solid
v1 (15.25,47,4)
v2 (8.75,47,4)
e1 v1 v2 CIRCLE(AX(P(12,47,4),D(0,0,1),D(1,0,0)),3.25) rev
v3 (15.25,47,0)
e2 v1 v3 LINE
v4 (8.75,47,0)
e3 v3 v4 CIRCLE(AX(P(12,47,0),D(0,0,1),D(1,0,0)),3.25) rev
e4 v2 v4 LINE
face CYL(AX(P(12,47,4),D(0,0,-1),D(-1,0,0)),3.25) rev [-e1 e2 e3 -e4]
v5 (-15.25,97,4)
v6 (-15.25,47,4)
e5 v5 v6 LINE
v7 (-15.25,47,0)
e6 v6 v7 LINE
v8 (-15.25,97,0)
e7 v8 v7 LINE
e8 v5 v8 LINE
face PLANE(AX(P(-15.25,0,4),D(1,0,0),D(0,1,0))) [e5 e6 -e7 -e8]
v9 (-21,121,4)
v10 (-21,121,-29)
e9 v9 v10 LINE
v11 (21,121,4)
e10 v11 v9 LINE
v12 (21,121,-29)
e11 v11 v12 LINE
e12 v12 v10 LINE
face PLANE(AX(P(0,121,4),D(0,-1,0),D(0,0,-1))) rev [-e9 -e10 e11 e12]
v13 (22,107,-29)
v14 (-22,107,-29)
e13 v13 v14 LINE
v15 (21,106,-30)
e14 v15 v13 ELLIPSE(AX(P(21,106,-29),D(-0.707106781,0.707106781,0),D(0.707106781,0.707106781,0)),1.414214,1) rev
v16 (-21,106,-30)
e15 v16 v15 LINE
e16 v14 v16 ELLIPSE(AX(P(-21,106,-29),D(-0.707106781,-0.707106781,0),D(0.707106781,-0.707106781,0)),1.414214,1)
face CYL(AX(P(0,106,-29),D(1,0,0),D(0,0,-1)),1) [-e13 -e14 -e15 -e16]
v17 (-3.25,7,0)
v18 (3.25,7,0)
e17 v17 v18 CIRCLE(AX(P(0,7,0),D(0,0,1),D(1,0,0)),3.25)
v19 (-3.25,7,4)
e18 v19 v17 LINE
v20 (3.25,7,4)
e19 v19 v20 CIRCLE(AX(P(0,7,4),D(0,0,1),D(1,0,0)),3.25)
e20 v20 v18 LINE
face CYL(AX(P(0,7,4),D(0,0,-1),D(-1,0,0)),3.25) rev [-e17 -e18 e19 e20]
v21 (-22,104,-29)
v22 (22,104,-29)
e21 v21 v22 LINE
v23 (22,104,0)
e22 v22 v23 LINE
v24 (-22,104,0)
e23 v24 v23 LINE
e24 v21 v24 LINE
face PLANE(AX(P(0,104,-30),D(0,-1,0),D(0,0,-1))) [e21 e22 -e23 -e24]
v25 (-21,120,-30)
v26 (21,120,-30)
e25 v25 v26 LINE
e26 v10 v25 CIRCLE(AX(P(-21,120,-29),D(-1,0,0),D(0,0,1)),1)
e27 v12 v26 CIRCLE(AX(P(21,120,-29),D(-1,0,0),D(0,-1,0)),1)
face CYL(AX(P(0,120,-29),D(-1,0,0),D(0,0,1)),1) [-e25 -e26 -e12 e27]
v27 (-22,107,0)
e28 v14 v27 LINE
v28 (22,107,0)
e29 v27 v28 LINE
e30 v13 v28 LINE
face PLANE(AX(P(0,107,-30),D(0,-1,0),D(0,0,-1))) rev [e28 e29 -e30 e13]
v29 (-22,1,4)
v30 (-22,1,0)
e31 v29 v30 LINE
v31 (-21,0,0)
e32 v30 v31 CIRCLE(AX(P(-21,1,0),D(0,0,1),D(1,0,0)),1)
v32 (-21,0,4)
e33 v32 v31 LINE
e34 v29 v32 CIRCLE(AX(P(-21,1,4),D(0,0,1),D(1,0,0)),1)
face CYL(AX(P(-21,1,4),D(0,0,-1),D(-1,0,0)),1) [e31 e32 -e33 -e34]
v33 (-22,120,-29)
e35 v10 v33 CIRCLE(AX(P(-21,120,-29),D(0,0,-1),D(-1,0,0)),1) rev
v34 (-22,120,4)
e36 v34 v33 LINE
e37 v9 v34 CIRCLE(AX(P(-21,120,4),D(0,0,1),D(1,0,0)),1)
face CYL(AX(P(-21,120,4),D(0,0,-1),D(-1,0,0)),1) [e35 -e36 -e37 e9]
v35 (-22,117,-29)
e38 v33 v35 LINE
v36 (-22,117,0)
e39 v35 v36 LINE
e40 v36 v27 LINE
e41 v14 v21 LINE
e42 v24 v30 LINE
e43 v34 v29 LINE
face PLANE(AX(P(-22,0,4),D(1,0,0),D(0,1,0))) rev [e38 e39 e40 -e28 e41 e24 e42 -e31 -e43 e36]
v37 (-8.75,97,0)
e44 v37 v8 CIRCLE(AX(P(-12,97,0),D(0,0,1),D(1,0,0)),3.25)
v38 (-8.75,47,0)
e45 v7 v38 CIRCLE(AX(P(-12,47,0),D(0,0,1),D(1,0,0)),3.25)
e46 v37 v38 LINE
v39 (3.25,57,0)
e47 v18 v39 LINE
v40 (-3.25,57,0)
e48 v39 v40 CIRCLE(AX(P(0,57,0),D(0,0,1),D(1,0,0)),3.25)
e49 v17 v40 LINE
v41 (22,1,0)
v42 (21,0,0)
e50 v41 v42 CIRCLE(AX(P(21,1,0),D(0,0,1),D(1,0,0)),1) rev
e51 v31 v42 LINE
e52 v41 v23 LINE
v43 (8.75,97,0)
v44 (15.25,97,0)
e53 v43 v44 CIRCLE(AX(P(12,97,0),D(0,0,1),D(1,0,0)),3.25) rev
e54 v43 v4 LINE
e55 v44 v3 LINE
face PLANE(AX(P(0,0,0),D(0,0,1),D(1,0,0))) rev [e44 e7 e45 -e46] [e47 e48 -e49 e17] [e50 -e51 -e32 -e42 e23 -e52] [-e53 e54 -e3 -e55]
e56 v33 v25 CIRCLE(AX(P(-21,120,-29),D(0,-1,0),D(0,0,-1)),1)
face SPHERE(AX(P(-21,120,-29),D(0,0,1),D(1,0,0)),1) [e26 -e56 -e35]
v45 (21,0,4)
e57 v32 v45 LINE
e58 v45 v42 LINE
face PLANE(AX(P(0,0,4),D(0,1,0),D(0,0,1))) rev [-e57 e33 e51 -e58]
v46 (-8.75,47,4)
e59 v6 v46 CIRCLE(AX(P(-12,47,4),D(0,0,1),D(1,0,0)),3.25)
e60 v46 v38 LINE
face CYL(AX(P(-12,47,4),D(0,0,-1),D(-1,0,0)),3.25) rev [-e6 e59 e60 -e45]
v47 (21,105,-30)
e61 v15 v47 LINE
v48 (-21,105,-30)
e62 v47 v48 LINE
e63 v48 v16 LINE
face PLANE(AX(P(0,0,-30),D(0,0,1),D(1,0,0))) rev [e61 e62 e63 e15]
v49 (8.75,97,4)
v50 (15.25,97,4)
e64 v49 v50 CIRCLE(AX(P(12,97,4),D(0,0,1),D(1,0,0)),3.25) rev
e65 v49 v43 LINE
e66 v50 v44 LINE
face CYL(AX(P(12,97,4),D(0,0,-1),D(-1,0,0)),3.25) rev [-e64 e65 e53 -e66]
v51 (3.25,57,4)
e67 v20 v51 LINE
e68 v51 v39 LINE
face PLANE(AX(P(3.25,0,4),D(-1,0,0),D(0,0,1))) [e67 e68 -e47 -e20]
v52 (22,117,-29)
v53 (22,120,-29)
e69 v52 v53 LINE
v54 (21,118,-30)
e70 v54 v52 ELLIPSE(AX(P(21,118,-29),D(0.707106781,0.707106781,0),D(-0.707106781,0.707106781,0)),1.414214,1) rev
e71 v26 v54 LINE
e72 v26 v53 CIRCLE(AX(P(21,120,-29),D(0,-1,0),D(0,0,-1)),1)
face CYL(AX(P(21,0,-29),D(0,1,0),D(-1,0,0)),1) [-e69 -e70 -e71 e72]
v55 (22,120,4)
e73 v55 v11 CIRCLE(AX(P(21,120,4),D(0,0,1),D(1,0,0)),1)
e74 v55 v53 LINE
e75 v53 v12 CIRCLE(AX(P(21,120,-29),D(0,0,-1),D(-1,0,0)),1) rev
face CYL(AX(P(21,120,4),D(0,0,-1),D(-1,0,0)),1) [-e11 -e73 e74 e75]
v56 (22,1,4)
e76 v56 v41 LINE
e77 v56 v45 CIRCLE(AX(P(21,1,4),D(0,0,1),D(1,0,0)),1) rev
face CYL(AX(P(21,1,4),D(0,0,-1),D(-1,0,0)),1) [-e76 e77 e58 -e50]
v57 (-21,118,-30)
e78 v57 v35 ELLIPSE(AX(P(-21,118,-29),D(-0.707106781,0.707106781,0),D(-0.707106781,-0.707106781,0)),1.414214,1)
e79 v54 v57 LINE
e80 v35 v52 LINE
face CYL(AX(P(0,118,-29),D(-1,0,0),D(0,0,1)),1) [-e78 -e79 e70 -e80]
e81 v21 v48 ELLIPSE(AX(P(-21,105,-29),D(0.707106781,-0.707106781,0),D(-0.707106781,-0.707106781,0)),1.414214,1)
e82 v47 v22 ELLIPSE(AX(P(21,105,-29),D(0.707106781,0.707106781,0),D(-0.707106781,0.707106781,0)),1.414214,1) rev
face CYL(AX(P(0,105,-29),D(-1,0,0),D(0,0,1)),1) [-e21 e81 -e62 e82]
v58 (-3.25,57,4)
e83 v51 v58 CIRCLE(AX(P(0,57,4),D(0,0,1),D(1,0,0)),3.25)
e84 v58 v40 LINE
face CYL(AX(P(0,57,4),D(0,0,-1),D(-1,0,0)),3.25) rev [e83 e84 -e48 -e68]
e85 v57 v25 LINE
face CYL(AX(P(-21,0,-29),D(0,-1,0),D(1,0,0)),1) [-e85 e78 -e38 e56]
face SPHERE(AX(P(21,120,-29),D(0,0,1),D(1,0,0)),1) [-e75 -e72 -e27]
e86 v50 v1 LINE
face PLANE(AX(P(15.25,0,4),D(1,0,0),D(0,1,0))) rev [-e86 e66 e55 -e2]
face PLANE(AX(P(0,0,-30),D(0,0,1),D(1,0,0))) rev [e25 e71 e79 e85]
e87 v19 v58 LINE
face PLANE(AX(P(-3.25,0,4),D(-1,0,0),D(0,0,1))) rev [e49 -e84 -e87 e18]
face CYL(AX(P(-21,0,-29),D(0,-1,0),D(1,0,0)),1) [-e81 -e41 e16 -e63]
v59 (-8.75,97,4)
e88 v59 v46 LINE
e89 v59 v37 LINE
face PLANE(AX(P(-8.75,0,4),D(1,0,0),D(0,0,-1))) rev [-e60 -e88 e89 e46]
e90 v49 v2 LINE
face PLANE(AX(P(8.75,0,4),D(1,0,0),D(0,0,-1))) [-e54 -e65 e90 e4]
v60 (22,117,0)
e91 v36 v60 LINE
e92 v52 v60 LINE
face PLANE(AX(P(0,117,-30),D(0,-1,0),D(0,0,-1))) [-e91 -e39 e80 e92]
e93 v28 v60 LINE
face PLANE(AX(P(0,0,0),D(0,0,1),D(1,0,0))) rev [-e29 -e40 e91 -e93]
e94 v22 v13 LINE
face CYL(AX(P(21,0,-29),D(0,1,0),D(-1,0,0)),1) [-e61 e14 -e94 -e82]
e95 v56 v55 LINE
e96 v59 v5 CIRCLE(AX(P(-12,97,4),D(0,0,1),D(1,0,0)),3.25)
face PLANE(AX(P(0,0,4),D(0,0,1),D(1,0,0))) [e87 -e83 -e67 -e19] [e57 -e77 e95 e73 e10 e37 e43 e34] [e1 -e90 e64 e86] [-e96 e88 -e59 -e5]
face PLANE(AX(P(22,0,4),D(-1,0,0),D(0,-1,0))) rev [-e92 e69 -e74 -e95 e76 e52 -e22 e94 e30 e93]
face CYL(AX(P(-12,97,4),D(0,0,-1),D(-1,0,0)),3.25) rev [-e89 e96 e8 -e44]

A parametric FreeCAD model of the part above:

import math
import FreeCAD as App
import Part
import Sketcher

V = App.Vector


def edges_at(feature, points):
    """Names of the edges that pass closest to the given points."""
    edges = feature.Shape.Edges
    near = lambda p: min(range(len(edges)), key=lambda i: edges[i].distToShape(Part.Vertex(*p))[0])
    return sorted({f"Edge{near(p) + 1}" for p in points})


def add_polygon(sketch, points):
    """Adds a closed chain of lines whose ends are joined by coincident constraints."""
    first, n = sketch.GeometryCount, len(points)
    for a, b in zip(points, points[1:] + points[:1]):
        sketch.addGeometry(Part.LineSegment(App.Vector(*a, 0), App.Vector(*b, 0)), False)
    for i in range(n):
        sketch.addConstraint(Sketcher.Constraint("Coincident", first + i, 2, first + (i + 1) % n, 1))

doc = App.newDocument("Part")
body = doc.addObject("PartDesign::Body", "Body")

# Sketch on XY plane
sketch1 = body.newObject("Sketcher::SketchObject", "Sketch")
sketch1.AttachmentSupport = (doc.getObject("XY_Plane"), [""])
sketch1.MapMode = "FlatFace"
sketch1.addGeometry([
    Part.ArcOfCircle(Part.Circle(V(-21, 1, 0), V(0, 0, 1), 1), math.radians(-180), math.radians(-90)),  # 0
    Part.LineSegment(V(-21, 0, 0), V(21, 0, 0)),  # 1
    Part.ArcOfCircle(Part.Circle(V(21, 1, 0), V(0, 0, 1), 1), math.radians(-90), math.radians(0)),  # 2
    Part.LineSegment(V(22, 1, 0), V(22, 120, 0)),  # 3
    Part.ArcOfCircle(Part.Circle(V(21, 120, 0), V(0, 0, 1), 1), math.radians(0), math.radians(90)),  # 4
    Part.LineSegment(V(21, 121, 0), V(-21, 121, 0)),  # 5
    Part.ArcOfCircle(Part.Circle(V(-21, 120, 0), V(0, 0, 1), 1), math.radians(90), math.radians(180)),  # 6
    Part.LineSegment(V(-22, 120, 0), V(-22, 1, 0)),  # 7
    Part.LineSegment(V(3.25, 57, 0), V(3.25, 7, 0)),  # 8
    Part.ArcOfCircle(Part.Circle(V(0, 7, 0), V(0, 0, 1), 3.25), math.radians(180), math.radians(360)),  # 9
    Part.LineSegment(V(-3.25, 7, 0), V(-3.25, 57, 0)),  # 10
    Part.ArcOfCircle(Part.Circle(V(0, 57, 0), V(0, 0, 1), 3.25), math.radians(0), math.radians(180)),  # 11
    Part.LineSegment(V(-15.25, 47, 0), V(-15.25, 97, 0)),  # 12
    Part.ArcOfCircle(Part.Circle(V(-12, 97, 0), V(0, 0, 1), 3.25), math.radians(0), math.radians(180)),  # 13
    Part.LineSegment(V(-8.75, 97, 0), V(-8.75, 47, 0)),  # 14
    Part.ArcOfCircle(Part.Circle(V(-12, 47, 0), V(0, 0, 1), 3.25), math.radians(180), math.radians(360)),  # 15
    Part.ArcOfCircle(Part.Circle(V(12, 47, 0), V(0, 0, 1), 3.25), math.radians(180), math.radians(360)),  # 16
    Part.LineSegment(V(8.75, 47, 0), V(8.75, 97, 0)),  # 17
    Part.ArcOfCircle(Part.Circle(V(12, 97, 0), V(0, 0, 1), 3.25), math.radians(0), math.radians(180)),  # 18
    Part.LineSegment(V(15.25, 97, 0), V(15.25, 47, 0)),  # 19
], False)
sketch1.addConstraint([
    Sketcher.Constraint("Tangent", 0, 2, 1, 1),
    Sketcher.Constraint("Tangent", 1, 2, 2, 1),
    Sketcher.Constraint("Tangent", 2, 2, 3, 1),
    Sketcher.Constraint("Tangent", 3, 2, 4, 1),
    Sketcher.Constraint("Tangent", 4, 2, 5, 1),
    Sketcher.Constraint("Tangent", 5, 2, 6, 1),
    Sketcher.Constraint("Tangent", 6, 2, 7, 1),
    Sketcher.Constraint("Tangent", 7, 2, 0, 1),
    Sketcher.Constraint("Tangent", 8, 2, 9, 2),
    Sketcher.Constraint("Tangent", 9, 1, 10, 1),
    Sketcher.Constraint("Tangent", 10, 2, 11, 2),
    Sketcher.Constraint("Tangent", 11, 1, 8, 1),
    Sketcher.Constraint("Tangent", 12, 2, 13, 2),
    Sketcher.Constraint("Tangent", 13, 1, 14, 1),
    Sketcher.Constraint("Tangent", 14, 2, 15, 2),
    Sketcher.Constraint("Tangent", 15, 1, 12, 1),
    Sketcher.Constraint("Tangent", 16, 1, 17, 1),
    Sketcher.Constraint("Tangent", 17, 2, 18, 2),
    Sketcher.Constraint("Tangent", 18, 1, 19, 1),
    Sketcher.Constraint("Tangent", 19, 2, 16, 2),
    Sketcher.Constraint("Horizontal", 1),
    Sketcher.Constraint("Vertical", 3),
    Sketcher.Constraint("Horizontal", 5),
    Sketcher.Constraint("Vertical", 7),
    Sketcher.Constraint("Vertical", 8),
    Sketcher.Constraint("Vertical", 10),
    Sketcher.Constraint("Vertical", 12),
    Sketcher.Constraint("Vertical", 14),
    Sketcher.Constraint("Vertical", 17),
    Sketcher.Constraint("Vertical", 19),
    Sketcher.Constraint("Equal", 0, 2),
    Sketcher.Constraint("Equal", 2, 4),
    Sketcher.Constraint("Equal", 4, 6),
    Sketcher.Constraint("Equal", 11, 13),
    Sketcher.Constraint("Equal", 15, 16),
    Sketcher.Constraint("Symmetric", 0, 2, 1, 2, -1, 1),
    Sketcher.Constraint("Symmetric", 15, 3, 16, 3, -2),
    Sketcher.Constraint("PointOnObject", 9, 3, -2),
    Sketcher.Constraint("Horizontal", 13, 3, 18, 3),
    Sketcher.Constraint("Equal", 10, 12),
    Sketcher.Constraint("Radius", 0, 1.0),
    Sketcher.Constraint("DistanceX", 1, 1, 1, 2, 42.0),
    Sketcher.Constraint("DistanceY", 3, 1, 3, 2, 119.0),
    Sketcher.Constraint("DistanceY", 8, 2, 8, 1, 50.0),
    Sketcher.Constraint("Radius", 9, 3.25),
    Sketcher.Constraint("DistanceY", -1, 1, 9, 3, 7.0),
    Sketcher.Constraint("DistanceX", 13, 3, -1, 1, 12.0),
    Sketcher.Constraint("DistanceY", -1, 1, 13, 3, 97.0),
])
pad1 = body.newObject("PartDesign::Pad", "Pad")
pad1.Profile = sketch1
pad1.Length = 4

# Sketch on XY plane
sketch2 = body.newObject("Sketcher::SketchObject", "Sketch001")
sketch2.AttachmentSupport = (doc.getObject("XY_Plane"), [""])
sketch2.MapMode = "FlatFace"
add_polygon(sketch2, [(-22, 107), (-22, 104), (22, 104), (22, 107)])  # lines 0-3
sketch2.addGeometry(Part.LineSegment(V(-22, 120, 0), V(-22, 117, 0)), False)  # 4
sketch2.addGeometry(Part.LineSegment(V(-22, 117, 0), V(22, 117, 0)), False)  # 5
sketch2.addGeometry(Part.LineSegment(V(22, 117, 0), V(22, 120, 0)), False)  # 6
sketch2.addGeometry(Part.ArcOfCircle(Part.Circle(V(21, 120, 0), V(0, 0, 1), 1), math.radians(0), math.radians(90)), False)  # 7
sketch2.addGeometry(Part.LineSegment(V(21, 121, 0), V(-21, 121, 0)), False)  # 8
sketch2.addGeometry(Part.ArcOfCircle(Part.Circle(V(-21, 120, 0), V(0, 0, 1), 1), math.radians(90), math.radians(180)), False)  # 9
sketch2.addConstraint([
    Sketcher.Constraint("Coincident", 4, 2, 5, 1),
    Sketcher.Constraint("Coincident", 5, 2, 6, 1),
    Sketcher.Constraint("Tangent", 6, 2, 7, 1),
    Sketcher.Constraint("Tangent", 7, 2, 8, 1),
    Sketcher.Constraint("Tangent", 8, 2, 9, 1),
    Sketcher.Constraint("Tangent", 9, 2, 4, 1),
    Sketcher.Constraint("Vertical", 0),
    Sketcher.Constraint("Horizontal", 1),
    Sketcher.Constraint("Vertical", 2),
    Sketcher.Constraint("Horizontal", 3),
    Sketcher.Constraint("Vertical", 4),
    Sketcher.Constraint("Horizontal", 5),
    Sketcher.Constraint("Vertical", 6),
    Sketcher.Constraint("Horizontal", 8),
    Sketcher.Constraint("Equal", 7, 9),
    Sketcher.Constraint("Vertical", 3, 2, 4, 2),
    Sketcher.Constraint("Vertical", 2, 2, 5, 2),
    Sketcher.Constraint("Equal", 2, 4),
    Sketcher.Constraint("Radius", 7, 1.0),
    Sketcher.Constraint("DistanceX", 1, 1, 1, 2, 44.0),
    Sketcher.Constraint("DistanceY", 0, 2, 0, 1, 3.0),
    Sketcher.Constraint("DistanceX", -1, 1, 7, 3, 21.0),
    Sketcher.Constraint("DistanceY", -1, 1, 7, 3, 120.0),
    Sketcher.Constraint("DistanceY", -1, 1, 0, 2, 104.0),
])
pad2 = body.newObject("PartDesign::Pad", "Pad001")
pad2.Profile = sketch2
pad2.Length = 30
pad2.Reversed = True
doc.recompute()

fillet = body.newObject("PartDesign::Fillet", "Fillet")
fillet.Base = (pad2, edges_at(pad2, [
    (-22, 105.5, -30),
    (22, 105.5, -30),
    (0, 104, -30),
    (0, 107, -30),
    (0, 121, -30),
    (21.707, 120.707, -30),
    (22, 118.5, -30),
    (0, 117, -30),
    (-22, 118.5, -30),
    (-21.707, 120.707, -30),
]))
fillet.Radius = 1

doc.recompute()
